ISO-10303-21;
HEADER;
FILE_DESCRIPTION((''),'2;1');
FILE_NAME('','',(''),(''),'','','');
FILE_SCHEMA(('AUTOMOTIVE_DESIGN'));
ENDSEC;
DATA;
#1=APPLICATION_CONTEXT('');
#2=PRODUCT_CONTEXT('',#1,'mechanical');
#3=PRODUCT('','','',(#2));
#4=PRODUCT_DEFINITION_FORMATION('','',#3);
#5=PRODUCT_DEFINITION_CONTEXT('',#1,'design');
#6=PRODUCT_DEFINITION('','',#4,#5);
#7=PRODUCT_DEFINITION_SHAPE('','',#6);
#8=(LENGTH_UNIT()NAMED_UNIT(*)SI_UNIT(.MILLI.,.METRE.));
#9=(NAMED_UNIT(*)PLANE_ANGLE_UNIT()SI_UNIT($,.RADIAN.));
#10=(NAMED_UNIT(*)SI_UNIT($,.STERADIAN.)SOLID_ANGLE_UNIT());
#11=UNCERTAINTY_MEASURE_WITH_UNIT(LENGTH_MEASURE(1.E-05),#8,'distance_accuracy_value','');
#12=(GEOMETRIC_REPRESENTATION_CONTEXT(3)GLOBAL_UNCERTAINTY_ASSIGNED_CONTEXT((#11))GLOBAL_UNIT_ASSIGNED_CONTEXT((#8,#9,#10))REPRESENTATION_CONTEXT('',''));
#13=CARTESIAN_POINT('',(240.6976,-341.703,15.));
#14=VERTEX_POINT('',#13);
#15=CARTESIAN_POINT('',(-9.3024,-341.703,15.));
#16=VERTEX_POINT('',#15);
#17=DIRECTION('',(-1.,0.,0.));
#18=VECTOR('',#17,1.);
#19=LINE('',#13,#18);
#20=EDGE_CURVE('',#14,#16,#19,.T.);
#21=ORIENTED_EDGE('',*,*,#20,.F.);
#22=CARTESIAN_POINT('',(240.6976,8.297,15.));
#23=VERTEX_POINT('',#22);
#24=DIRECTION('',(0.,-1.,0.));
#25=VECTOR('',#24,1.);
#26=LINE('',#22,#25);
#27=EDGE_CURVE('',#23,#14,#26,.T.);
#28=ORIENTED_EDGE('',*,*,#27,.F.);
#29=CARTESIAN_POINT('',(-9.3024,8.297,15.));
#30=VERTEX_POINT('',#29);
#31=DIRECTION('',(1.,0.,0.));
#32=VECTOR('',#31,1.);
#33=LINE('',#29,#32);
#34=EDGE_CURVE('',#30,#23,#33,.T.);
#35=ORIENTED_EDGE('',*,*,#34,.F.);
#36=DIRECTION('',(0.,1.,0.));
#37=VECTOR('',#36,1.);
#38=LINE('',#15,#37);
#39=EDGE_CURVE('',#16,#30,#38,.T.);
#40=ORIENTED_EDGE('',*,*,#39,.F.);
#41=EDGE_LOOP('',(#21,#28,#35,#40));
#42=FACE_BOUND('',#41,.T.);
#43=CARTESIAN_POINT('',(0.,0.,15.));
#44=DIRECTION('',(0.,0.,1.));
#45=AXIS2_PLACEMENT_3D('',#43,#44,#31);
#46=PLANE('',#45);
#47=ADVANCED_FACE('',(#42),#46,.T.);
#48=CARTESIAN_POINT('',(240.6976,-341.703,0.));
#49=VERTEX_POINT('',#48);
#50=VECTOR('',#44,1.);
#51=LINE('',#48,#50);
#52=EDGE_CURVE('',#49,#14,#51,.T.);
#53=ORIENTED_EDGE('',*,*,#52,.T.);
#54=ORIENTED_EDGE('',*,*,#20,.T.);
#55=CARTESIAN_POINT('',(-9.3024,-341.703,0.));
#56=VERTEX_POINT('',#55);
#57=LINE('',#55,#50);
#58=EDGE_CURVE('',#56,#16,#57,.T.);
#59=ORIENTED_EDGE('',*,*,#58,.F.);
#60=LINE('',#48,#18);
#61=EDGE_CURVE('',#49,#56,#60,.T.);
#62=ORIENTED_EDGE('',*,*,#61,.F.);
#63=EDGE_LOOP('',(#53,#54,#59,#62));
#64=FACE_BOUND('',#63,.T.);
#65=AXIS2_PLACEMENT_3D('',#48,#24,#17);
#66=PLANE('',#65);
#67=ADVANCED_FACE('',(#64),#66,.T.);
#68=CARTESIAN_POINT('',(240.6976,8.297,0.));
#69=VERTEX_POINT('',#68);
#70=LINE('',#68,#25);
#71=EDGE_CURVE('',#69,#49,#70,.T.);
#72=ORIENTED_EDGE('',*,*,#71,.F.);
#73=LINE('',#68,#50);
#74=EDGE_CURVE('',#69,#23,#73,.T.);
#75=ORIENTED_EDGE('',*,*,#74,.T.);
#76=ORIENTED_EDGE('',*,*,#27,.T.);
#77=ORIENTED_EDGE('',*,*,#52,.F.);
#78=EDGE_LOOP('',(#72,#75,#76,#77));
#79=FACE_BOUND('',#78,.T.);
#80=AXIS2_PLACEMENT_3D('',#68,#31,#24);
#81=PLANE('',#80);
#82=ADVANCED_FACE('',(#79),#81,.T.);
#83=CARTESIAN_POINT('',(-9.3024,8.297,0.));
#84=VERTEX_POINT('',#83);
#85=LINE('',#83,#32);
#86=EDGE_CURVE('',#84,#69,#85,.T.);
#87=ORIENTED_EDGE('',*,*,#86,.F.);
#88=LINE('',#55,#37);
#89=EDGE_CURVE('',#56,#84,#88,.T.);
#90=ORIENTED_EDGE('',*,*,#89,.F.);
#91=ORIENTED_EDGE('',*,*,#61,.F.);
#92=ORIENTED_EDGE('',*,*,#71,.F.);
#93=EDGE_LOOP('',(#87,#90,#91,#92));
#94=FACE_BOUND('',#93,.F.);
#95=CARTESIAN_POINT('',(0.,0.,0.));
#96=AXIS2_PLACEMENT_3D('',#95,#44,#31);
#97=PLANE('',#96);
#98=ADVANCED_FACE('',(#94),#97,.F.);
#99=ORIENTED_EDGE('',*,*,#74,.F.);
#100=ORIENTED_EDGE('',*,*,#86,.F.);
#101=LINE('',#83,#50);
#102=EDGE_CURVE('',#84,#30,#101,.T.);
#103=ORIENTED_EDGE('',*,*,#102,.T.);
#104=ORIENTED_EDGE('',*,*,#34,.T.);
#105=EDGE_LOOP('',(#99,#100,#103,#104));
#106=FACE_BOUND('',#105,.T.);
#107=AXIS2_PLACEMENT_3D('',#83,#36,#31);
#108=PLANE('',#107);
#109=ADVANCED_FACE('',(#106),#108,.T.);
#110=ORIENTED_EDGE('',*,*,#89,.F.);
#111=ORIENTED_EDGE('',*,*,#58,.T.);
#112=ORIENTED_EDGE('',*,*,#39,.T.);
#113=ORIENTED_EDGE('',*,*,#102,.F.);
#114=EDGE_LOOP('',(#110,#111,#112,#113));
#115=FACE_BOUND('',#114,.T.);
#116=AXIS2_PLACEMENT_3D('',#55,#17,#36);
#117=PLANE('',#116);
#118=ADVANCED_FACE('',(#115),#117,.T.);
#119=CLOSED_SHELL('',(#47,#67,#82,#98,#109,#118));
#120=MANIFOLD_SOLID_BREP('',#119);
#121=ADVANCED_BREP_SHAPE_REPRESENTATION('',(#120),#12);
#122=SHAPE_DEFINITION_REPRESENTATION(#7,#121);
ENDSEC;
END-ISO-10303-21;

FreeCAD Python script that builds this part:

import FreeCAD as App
import Part
import Sketcher

V = App.Vector
Q = App.Units.Quantity


def add_polygon(sketch, points):
    """Adds a closed chain of lines whose ends are joined by coincident constraints."""
    first, n = sketch.GeometryCount, len(points)
    for a, b in zip(points, points[1:] + points[:1]):
        sketch.addGeometry(Part.LineSegment(App.Vector(*a, 0), App.Vector(*b, 0)), False)
    for i in range(n):
        sketch.addConstraint(Sketcher.Constraint("Coincident", first + i, 2, first + (i + 1) % n, 1))

doc = App.newDocument("Part")
body = doc.addObject("PartDesign::Body", "Body")

# Sketch on XY plane
sketch1 = body.newObject("Sketcher::SketchObject", "Sketch")
sketch1.AttachmentSupport = (doc.getObject("XY_Plane"), [""])
sketch1.MapMode = "FlatFace"
add_polygon(sketch1, [(240.6976, 8.297), (-9.3024, 8.297), (-9.3024, -341.703), (240.6976, -341.703)])  # lines 0-3
sketch1.addConstraint(Sketcher.Constraint("Horizontal", 0))
sketch1.addConstraint(Sketcher.Constraint("Vertical", 1))
sketch1.addConstraint(Sketcher.Constraint("Horizontal", 2))
sketch1.addConstraint(Sketcher.Constraint("Vertical", 3))
sketch1.addConstraint(Sketcher.Constraint("DistanceX", 0, 2, 0, 1, Q("250 mm")))
sketch1.addConstraint(Sketcher.Constraint("DistanceY", 1, 2, 1, 1, Q("350 mm")))
sketch1.addConstraint(Sketcher.Constraint("DistanceY", -1, 1, 0, 2, Q("8.297 mm")))
sketch1.addConstraint(Sketcher.Constraint("DistanceX", 0, 2, -1, 1, Q("9.3024 mm")))
pad1 = body.newObject("PartDesign::Pad", "Pad")
pad1.Profile = sketch1
pad1.Length = 15

doc.recompute()
